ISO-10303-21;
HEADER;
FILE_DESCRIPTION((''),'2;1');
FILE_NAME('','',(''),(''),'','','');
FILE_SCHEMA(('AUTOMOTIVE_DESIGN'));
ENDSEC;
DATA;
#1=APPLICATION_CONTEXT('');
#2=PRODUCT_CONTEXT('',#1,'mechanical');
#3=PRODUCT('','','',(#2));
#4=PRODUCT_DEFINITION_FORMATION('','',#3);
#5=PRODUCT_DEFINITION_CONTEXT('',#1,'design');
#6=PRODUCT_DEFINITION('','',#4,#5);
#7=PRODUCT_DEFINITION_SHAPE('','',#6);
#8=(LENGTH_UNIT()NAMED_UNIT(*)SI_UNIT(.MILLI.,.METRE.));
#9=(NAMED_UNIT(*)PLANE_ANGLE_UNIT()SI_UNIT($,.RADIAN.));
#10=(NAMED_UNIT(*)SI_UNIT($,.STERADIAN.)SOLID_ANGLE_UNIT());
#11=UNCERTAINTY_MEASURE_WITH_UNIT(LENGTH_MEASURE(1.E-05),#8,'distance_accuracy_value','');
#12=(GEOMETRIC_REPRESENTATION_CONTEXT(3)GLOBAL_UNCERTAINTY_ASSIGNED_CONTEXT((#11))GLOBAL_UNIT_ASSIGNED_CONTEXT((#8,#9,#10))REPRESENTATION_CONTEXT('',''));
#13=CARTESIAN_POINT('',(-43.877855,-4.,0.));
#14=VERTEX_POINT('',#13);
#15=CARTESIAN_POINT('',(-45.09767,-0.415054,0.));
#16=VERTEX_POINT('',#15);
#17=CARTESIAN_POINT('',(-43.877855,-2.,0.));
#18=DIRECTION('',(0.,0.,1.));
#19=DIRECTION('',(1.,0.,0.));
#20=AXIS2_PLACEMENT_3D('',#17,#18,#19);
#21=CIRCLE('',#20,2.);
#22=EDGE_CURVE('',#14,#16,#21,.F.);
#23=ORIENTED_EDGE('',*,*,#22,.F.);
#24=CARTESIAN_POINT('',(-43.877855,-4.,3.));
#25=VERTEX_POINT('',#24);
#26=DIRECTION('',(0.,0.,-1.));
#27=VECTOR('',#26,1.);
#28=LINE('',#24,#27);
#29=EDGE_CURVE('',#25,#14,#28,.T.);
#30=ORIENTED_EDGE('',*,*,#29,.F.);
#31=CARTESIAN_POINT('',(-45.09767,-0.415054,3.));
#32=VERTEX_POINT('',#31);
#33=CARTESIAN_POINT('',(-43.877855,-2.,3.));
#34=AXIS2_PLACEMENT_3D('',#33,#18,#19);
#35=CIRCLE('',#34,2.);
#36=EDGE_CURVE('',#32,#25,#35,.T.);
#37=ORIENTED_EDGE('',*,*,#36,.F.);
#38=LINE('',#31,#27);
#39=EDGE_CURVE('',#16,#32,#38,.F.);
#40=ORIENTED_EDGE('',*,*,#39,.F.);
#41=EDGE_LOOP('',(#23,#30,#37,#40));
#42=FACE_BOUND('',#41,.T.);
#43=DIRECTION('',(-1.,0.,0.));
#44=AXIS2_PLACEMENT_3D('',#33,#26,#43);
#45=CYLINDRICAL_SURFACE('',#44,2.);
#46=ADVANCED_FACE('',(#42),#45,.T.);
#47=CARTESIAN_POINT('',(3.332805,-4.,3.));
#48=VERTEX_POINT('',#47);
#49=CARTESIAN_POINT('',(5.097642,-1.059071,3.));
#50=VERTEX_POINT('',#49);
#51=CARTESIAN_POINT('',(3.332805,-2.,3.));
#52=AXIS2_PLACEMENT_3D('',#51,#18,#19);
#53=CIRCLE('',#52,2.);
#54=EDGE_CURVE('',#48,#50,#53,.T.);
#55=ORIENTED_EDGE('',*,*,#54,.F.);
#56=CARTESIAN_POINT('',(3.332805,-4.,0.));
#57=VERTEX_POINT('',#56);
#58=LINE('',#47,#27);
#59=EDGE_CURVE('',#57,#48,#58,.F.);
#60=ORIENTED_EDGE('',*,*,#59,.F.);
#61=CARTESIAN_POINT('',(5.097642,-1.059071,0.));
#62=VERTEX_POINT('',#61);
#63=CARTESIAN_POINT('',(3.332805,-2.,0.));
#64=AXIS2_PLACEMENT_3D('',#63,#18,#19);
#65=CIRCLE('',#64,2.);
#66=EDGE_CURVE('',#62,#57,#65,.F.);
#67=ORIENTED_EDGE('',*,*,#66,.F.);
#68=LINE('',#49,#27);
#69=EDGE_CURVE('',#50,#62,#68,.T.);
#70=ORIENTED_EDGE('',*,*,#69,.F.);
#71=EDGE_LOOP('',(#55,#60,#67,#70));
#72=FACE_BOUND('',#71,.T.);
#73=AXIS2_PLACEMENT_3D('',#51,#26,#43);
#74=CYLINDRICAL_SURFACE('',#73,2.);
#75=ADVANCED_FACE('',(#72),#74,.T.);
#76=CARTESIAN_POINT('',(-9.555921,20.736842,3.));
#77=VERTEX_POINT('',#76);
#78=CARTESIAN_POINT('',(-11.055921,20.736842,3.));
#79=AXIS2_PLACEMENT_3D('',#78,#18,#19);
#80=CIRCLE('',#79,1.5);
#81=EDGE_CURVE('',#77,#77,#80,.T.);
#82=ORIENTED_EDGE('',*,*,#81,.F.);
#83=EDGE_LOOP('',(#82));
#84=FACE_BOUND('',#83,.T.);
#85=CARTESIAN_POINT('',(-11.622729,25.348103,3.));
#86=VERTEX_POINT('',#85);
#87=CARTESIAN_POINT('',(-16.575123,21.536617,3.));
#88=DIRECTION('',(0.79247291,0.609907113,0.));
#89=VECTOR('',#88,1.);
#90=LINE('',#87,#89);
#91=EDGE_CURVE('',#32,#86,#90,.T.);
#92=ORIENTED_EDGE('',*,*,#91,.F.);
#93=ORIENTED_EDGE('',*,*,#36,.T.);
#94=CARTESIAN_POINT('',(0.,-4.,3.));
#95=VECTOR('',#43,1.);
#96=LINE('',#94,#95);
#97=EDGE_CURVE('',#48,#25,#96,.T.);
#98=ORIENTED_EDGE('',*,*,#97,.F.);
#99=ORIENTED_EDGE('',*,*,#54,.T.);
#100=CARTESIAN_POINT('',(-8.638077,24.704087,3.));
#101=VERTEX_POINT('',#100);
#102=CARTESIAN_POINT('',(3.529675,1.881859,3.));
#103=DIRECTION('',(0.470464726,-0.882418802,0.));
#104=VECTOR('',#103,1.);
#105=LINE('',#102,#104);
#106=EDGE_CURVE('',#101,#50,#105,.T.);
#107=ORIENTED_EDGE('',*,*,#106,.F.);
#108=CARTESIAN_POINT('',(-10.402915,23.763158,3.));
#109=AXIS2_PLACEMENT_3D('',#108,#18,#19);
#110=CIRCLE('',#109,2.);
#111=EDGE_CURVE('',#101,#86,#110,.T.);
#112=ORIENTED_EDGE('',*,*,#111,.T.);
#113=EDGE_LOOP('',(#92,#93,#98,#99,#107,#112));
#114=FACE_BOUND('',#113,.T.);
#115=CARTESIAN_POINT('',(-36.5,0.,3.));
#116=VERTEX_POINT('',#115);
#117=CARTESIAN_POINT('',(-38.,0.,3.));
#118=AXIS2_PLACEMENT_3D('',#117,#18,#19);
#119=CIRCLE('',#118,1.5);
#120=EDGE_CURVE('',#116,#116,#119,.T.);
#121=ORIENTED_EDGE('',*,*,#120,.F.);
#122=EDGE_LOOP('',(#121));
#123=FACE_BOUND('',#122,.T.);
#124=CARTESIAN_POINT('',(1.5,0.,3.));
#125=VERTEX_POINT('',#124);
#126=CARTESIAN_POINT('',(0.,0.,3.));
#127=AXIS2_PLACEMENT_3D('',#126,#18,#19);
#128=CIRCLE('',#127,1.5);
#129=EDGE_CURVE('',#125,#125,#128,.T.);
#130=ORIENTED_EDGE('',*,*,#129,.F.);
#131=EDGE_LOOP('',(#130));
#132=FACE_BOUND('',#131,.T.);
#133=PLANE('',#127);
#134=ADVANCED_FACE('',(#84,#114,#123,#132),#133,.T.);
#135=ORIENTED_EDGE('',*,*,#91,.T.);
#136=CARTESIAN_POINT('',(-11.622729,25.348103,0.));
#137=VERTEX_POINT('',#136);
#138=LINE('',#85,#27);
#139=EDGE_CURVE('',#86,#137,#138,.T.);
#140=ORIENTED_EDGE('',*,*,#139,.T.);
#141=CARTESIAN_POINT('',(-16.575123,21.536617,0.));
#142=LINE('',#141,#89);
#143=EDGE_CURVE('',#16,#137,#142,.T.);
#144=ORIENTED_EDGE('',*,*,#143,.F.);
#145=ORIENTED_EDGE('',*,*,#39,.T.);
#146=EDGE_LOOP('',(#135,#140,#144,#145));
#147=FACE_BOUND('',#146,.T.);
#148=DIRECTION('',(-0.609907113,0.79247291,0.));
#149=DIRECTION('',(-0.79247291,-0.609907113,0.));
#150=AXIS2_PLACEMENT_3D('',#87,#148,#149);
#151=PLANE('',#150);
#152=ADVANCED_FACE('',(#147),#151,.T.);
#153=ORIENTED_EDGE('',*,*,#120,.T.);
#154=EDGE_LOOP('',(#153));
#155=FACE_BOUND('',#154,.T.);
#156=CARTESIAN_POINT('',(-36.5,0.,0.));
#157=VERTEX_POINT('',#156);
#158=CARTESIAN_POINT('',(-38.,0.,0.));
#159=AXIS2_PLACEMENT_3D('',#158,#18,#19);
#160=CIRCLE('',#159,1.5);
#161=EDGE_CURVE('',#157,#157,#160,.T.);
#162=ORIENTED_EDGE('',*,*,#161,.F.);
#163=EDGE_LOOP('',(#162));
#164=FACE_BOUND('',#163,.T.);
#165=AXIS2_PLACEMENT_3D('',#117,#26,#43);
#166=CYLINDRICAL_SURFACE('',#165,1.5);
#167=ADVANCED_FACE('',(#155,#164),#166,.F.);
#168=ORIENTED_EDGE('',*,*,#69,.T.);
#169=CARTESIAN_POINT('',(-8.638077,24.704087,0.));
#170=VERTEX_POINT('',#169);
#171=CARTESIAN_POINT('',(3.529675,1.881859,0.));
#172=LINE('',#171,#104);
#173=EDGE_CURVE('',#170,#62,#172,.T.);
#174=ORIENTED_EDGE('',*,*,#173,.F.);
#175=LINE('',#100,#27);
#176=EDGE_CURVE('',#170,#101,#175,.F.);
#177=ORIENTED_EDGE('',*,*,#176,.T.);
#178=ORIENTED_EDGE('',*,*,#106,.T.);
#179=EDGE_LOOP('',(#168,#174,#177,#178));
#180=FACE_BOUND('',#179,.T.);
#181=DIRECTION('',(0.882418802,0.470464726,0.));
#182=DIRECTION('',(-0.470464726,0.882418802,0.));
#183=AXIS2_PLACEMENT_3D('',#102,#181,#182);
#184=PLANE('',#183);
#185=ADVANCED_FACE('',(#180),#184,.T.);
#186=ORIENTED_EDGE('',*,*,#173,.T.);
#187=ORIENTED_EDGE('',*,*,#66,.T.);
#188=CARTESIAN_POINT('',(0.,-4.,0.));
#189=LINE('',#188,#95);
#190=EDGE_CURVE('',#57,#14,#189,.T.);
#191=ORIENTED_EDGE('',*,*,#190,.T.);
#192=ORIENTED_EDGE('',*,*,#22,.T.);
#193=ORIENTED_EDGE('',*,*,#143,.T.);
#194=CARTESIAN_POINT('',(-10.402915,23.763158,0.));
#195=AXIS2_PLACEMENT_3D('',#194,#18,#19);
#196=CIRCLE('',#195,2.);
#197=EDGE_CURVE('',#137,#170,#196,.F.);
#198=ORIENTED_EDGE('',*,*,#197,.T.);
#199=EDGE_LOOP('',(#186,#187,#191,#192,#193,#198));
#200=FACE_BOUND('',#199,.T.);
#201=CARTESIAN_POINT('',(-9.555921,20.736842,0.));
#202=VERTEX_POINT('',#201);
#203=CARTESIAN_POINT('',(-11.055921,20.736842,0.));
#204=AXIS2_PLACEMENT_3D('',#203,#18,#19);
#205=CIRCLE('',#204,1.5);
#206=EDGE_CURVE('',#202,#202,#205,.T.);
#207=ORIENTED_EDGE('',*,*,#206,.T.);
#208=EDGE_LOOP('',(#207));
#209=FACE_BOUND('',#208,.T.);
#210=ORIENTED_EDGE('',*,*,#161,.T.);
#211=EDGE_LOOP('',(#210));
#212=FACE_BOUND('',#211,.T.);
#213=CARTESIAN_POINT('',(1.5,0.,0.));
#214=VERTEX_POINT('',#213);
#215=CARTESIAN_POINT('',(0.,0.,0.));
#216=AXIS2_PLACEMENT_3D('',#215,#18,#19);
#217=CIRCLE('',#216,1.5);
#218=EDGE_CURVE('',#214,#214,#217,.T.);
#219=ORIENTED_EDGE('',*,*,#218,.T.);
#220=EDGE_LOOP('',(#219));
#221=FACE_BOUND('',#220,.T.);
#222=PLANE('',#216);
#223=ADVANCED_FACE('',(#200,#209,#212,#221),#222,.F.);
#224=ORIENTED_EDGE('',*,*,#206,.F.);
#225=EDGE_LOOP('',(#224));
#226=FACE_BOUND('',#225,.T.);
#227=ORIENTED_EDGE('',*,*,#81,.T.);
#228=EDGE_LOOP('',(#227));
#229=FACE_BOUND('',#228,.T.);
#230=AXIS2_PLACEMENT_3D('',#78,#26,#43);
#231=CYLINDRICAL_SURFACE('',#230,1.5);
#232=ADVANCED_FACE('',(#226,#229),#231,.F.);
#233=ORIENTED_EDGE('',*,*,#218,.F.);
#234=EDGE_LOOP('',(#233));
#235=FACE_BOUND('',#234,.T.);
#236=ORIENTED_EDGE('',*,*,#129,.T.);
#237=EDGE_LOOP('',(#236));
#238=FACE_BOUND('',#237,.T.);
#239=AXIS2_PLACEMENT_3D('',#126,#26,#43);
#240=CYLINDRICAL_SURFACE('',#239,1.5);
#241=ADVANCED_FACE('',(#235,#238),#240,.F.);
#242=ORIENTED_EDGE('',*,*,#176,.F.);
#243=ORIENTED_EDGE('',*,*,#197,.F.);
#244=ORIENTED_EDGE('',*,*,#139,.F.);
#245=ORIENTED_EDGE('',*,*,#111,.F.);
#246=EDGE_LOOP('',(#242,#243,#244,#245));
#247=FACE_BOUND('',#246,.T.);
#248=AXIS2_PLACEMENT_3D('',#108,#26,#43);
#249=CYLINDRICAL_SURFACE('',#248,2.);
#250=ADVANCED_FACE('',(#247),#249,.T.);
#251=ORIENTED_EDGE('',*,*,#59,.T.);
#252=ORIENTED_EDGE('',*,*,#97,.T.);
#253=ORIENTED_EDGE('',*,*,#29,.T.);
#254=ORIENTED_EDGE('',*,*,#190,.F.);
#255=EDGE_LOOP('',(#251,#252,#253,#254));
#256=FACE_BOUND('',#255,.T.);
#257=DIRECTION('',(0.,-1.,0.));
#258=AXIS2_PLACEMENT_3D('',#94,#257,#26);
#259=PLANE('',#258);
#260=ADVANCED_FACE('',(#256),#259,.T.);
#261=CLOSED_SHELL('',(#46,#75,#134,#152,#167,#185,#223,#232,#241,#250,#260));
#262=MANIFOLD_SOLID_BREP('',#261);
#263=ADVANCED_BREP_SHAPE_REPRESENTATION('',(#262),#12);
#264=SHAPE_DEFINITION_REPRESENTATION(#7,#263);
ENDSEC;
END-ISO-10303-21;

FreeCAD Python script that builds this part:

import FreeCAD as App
import Part
import Sketcher


def edges_at(feature, points):
    """Names of the edges that pass closest to the given points."""
    edges = feature.Shape.Edges
    near = lambda p: min(range(len(edges)), key=lambda i: edges[i].distToShape(Part.Vertex(*p))[0])
    return sorted({f"Edge{near(p) + 1}" for p in points})


def add_polygon(sketch, points):
    """Adds a closed chain of lines whose ends are joined by coincident constraints."""
    first, n = sketch.GeometryCount, len(points)
    for a, b in zip(points, points[1:] + points[:1]):
        sketch.addGeometry(Part.LineSegment(App.Vector(*a, 0), App.Vector(*b, 0)), False)
    for i in range(n):
        sketch.addConstraint(Sketcher.Constraint("Coincident", first + i, 2, first + (i + 1) % n, 1))

doc = App.newDocument("Part")
body = doc.addObject("PartDesign::Body", "Body")

sketch1 = body.newObject("Sketcher::SketchObject", "Sketch")
sketch1.AttachmentSupport = (doc.getObject("XY_Plane"), [""])
sketch1.MapMode = "FlatFace"
add_polygon(sketch1, [(-9.7, 26.8), (-49.8, -4), (6.7, -4)])
sketch1.addGeometry(Part.Circle(App.Vector(0, 0, 0), App.Vector(0, 0, 1), 1.5), False)
sketch1.addGeometry(Part.Circle(App.Vector(-38, 0, 0), App.Vector(0, 0, 1), 1.5), False)
sketch1.addGeometry(Part.Circle(App.Vector(-11.1, 20.7, 0), App.Vector(0, 0, 1), 1.5), False)
sketch1.addConstraint(Sketcher.Constraint("Horizontal", 1))
sketch1.addConstraint(Sketcher.Constraint("Coincident", 3, 3, -1, 1))
sketch1.addConstraint(Sketcher.Constraint("Equal", 3, 4))
sketch1.addConstraint(Sketcher.Constraint("Equal", 4, 5))
sketch1.addConstraint(Sketcher.Constraint("PointOnObject", 4, 3, -1))
sketch1.addConstraint(Sketcher.Constraint("Diameter", 3, 3.0))
sketch1.addConstraint(Sketcher.Constraint("DistanceX", 4, 3, -1, 1, 38.0))
sketch1.addConstraint(Sketcher.Constraint("DistanceY", 0, 2, -1, 1, 4.0))
sketch1.addConstraint(Sketcher.Constraint("DistanceX", 1, 1, 1, 2, 56.42132))
sketch1.addConstraint(Sketcher.Constraint("DistanceX", 5, 3, -1, 1, 11.055921))
sketch1.addConstraint(Sketcher.Constraint("DistanceY", -1, 1, 5, 3, 20.736842))
sketch1.addConstraint(Sketcher.Constraint("DistanceX", 0, 2, -1, 1, 49.755711))
sketch1.addConstraint(Sketcher.Constraint("DistanceX", 2, 2, -1, 1, 9.749908))
sketch1.addConstraint(Sketcher.Constraint("DistanceY", 5, 3, 2, 2, 6.052632))
pad1 = body.newObject("PartDesign::Pad", "Pad")
pad1.Profile = sketch1
pad1.Length = 3
doc.recompute()

fillet = body.newObject("PartDesign::Fillet", "Fillet")
fillet.Base = (pad1, edges_at(pad1, [(-49.756, -4, 1.5), (-9.75, 26.789, 1.5), (6.666, -4, 1.5)]))
fillet.Radius = 2

doc.recompute()
